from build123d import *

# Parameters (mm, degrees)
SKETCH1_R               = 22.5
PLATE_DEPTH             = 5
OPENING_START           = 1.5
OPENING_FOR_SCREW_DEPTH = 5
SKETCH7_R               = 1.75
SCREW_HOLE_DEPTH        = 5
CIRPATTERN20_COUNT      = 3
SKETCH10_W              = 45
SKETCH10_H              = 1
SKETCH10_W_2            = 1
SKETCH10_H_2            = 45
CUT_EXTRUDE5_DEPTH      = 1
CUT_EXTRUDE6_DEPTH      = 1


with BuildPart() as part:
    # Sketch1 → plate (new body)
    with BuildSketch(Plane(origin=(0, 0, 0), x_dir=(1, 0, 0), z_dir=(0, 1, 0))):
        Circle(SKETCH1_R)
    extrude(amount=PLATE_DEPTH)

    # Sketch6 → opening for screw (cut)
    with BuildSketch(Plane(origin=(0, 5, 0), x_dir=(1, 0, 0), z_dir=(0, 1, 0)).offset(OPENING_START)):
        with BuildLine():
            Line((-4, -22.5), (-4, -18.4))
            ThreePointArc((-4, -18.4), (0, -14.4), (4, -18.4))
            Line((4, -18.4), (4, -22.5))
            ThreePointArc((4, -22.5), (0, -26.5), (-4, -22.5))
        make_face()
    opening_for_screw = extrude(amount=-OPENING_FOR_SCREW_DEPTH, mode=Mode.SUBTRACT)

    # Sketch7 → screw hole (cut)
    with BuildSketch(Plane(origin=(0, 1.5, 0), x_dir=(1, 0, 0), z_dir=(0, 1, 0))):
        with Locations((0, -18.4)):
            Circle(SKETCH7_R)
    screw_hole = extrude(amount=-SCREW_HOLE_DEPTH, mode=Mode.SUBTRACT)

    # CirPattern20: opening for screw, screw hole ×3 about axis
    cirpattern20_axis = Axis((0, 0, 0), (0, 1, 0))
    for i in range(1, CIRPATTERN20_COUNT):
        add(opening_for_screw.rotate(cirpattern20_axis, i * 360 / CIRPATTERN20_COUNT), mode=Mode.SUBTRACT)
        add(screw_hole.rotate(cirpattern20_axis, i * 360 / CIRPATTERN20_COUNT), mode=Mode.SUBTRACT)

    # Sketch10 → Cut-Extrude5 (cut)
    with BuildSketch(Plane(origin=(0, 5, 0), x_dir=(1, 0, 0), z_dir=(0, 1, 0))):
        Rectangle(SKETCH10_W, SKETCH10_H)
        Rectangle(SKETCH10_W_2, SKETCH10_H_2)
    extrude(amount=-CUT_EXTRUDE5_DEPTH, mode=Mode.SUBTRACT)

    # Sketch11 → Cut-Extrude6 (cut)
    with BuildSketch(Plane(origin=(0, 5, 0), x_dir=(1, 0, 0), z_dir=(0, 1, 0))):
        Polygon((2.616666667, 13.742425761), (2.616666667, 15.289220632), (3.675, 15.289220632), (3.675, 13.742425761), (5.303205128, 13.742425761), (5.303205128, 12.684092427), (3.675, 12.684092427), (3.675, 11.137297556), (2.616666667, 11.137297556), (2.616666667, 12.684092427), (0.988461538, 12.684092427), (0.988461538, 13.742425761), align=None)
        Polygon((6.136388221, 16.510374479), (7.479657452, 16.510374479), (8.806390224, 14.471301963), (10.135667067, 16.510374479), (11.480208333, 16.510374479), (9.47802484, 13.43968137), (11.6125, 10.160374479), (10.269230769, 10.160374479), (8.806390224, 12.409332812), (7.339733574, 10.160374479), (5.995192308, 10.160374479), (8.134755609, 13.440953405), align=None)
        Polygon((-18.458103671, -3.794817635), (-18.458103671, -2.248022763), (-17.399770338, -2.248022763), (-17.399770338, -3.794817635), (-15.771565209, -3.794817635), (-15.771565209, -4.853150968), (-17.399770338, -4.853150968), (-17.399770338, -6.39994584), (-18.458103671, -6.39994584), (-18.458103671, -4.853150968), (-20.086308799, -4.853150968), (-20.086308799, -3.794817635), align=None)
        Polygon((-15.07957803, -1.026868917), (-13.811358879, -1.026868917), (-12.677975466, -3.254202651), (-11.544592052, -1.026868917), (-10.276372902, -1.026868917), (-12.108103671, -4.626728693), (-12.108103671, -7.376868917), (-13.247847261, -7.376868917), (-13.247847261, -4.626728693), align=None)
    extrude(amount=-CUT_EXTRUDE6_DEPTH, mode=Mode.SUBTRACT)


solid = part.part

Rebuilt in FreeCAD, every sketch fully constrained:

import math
import FreeCAD as App
import Part
import Sketcher
Q = App.Units.Quantity

doc = App.newDocument("Part")
body = doc.addObject("PartDesign::Body", "Body")

sketch1 = body.newObject("Sketcher::SketchObject", "Sketch")
sketch1.AttachmentSupport = (doc.getObject("XZ_Plane"), [""])
sketch1.MapMode = "FlatFace"
sketch1.addGeometry(Part.Circle(App.Vector(0, 0, 0), App.Vector(0, 0, 1), 22), False)
sketch1.addConstraint(Sketcher.Constraint("Coincident", 0, 3, -1, 1))
sketch1.addConstraint(Sketcher.Constraint("Diameter", 0, Q("45 mm")))
pad1 = body.newObject("PartDesign::Pad", "Pad")
pad1.Profile = sketch1
pad1.Length = 5
pad1.Reversed = True

sketch2 = body.newObject("Sketcher::SketchObject", "Sketch001")
sketch2.AttachmentSupport = (doc.getObject("XZ_Plane"), [""])
sketch2.MapMode = "FlatFace"
sketch2.AttachmentOffset = App.Placement(App.Vector(0, 0, -6.5), App.Rotation())
sketch2.addGeometry(Part.LineSegment(App.Vector(-4, 18.4, 0), App.Vector(-4, 22.5, 0)), False)
sketch2.addGeometry(Part.ArcOfCircle(Part.Circle(App.Vector(0, 22.5, 0), App.Vector(0, 0, 1), 4), math.radians(0), math.radians(180)), False)
sketch2.addGeometry(Part.LineSegment(App.Vector(4, 22.5, 0), App.Vector(4, 18.4, 0)), False)
sketch2.addGeometry(Part.ArcOfCircle(Part.Circle(App.Vector(0, 18.4, 0), App.Vector(0, 0, 1), 4), math.radians(180), math.radians(360)), False)
sketch2.addConstraint(Sketcher.Constraint("Tangent", 0, 2, 1, 2))
sketch2.addConstraint(Sketcher.Constraint("Tangent", 1, 1, 2, 1))
sketch2.addConstraint(Sketcher.Constraint("Tangent", 2, 2, 3, 2))
sketch2.addConstraint(Sketcher.Constraint("Tangent", 3, 1, 0, 1))
sketch2.addConstraint(Sketcher.Constraint("Vertical", 0))
sketch2.addConstraint(Sketcher.Constraint("Vertical", 2))
sketch2.addConstraint(Sketcher.Constraint("PointOnObject", 1, 3, -2))
sketch2.addConstraint(Sketcher.Constraint("Radius", 1, Q("4 mm")))
sketch2.addConstraint(Sketcher.Constraint("DistanceY", 0, 1, 0, 2, Q("4.1 mm")))
sketch2.addConstraint(Sketcher.Constraint("DistanceY", -1, 1, 1, 3, Q("22.5 mm")))
pocket1 = body.newObject("PartDesign::Pocket", "Pocket")
pocket1.Profile = sketch2
pocket1.Length = 5
pocket1.Reversed = True

sketch3 = body.newObject("Sketcher::SketchObject", "Sketch002")
sketch3.AttachmentSupport = (doc.getObject("XZ_Plane"), [""])
sketch3.MapMode = "FlatFace"
sketch3.AttachmentOffset = App.Placement(App.Vector(0, 0, -1.5), App.Rotation())
sketch3.addGeometry(Part.Circle(App.Vector(0, 18.4, 0), App.Vector(0, 0, 1), 1.8), False)
sketch3.addConstraint(Sketcher.Constraint("PointOnObject", 0, 3, -2))
sketch3.addConstraint(Sketcher.Constraint("Diameter", 0, Q("3.5 mm")))
sketch3.addConstraint(Sketcher.Constraint("DistanceY", -1, 1, 0, 3, Q("18.4 mm")))
pocket2 = body.newObject("PartDesign::Pocket", "Pocket001")
pocket2.Profile = sketch3
pocket2.Length = 5
pocket2.Reversed = True
doc.recompute()

polarpattern = body.newObject("PartDesign::PolarPattern", "PolarPattern")
polarpattern.Originals = [pocket1, pocket2]
polarpattern.Axis = (doc.getObject("Y_Axis"), [""])
polarpattern.Angle = 360
polarpattern.Occurrences = 3
body.Tip = polarpattern

sketch4 = body.newObject("Sketcher::SketchObject", "Sketch003")
sketch4.AttachmentSupport = (doc.getObject("XZ_Plane"), [""])
sketch4.MapMode = "FlatFace"
sketch4.AttachmentOffset = App.Placement(App.Vector(0, 0, -5), App.Rotation())
sketch4.addGeometry(Part.LineSegment(App.Vector(-22.5, -0.5, 0), App.Vector(-22.5, 0.5, 0)), False)
sketch4.addGeometry(Part.LineSegment(App.Vector(-22.5, 0.5, 0), App.Vector(-0.5, 0.5, 0)), False)
sketch4.addGeometry(Part.LineSegment(App.Vector(-0.5, 0.5, 0), App.Vector(-0.5, 22.5, 0)), False)
sketch4.addGeometry(Part.LineSegment(App.Vector(-0.5, 22.5, 0), App.Vector(0.5, 22.5, 0)), False)
sketch4.addGeometry(Part.LineSegment(App.Vector(0.5, 22.5, 0), App.Vector(0.5, 0.5, 0)), False)
sketch4.addGeometry(Part.LineSegment(App.Vector(0.5, 0.5, 0), App.Vector(22.5, 0.5, 0)), False)
sketch4.addGeometry(Part.LineSegment(App.Vector(22.5, 0.5, 0), App.Vector(22.5, -0.5, 0)), False)
sketch4.addGeometry(Part.LineSegment(App.Vector(22.5, -0.5, 0), App.Vector(0.5, -0.5, 0)), False)
sketch4.addGeometry(Part.LineSegment(App.Vector(0.5, -0.5, 0), App.Vector(0.5, -22.5, 0)), False)
sketch4.addGeometry(Part.LineSegment(App.Vector(0.5, -22.5, 0), App.Vector(-0.5, -22.5, 0)), False)
sketch4.addGeometry(Part.LineSegment(App.Vector(-0.5, -22.5, 0), App.Vector(-0.5, -0.5, 0)), False)
sketch4.addGeometry(Part.LineSegment(App.Vector(-0.5, -0.5, 0), App.Vector(-22.5, -0.5, 0)), False)
sketch4.addConstraint(Sketcher.Constraint("Coincident", 0, 2, 1, 1))
sketch4.addConstraint(Sketcher.Constraint("Coincident", 1, 2, 2, 1))
sketch4.addConstraint(Sketcher.Constraint("Coincident", 2, 2, 3, 1))
sketch4.addConstraint(Sketcher.Constraint("Coincident", 3, 2, 4, 1))
sketch4.addConstraint(Sketcher.Constraint("Coincident", 4, 2, 5, 1))
sketch4.addConstraint(Sketcher.Constraint("Coincident", 5, 2, 6, 1))
sketch4.addConstraint(Sketcher.Constraint("Coincident", 6, 2, 7, 1))
sketch4.addConstraint(Sketcher.Constraint("Coincident", 7, 2, 8, 1))
sketch4.addConstraint(Sketcher.Constraint("Coincident", 8, 2, 9, 1))
sketch4.addConstraint(Sketcher.Constraint("Coincident", 9, 2, 10, 1))
sketch4.addConstraint(Sketcher.Constraint("Coincident", 10, 2, 11, 1))
sketch4.addConstraint(Sketcher.Constraint("Coincident", 11, 2, 0, 1))
sketch4.addConstraint(Sketcher.Constraint("Vertical", 0))
sketch4.addConstraint(Sketcher.Constraint("Horizontal", 1))
sketch4.addConstraint(Sketcher.Constraint("Vertical", 2))
sketch4.addConstraint(Sketcher.Constraint("Horizontal", 3))
sketch4.addConstraint(Sketcher.Constraint("Vertical", 4))
sketch4.addConstraint(Sketcher.Constraint("Horizontal", 5))
sketch4.addConstraint(Sketcher.Constraint("Vertical", 6))
sketch4.addConstraint(Sketcher.Constraint("Horizontal", 7))
sketch4.addConstraint(Sketcher.Constraint("Vertical", 8))
sketch4.addConstraint(Sketcher.Constraint("Horizontal", 9))
sketch4.addConstraint(Sketcher.Constraint("Vertical", 10))
sketch4.addConstraint(Sketcher.Constraint("Horizontal", 11))
sketch4.addConstraint(Sketcher.Constraint("Symmetric", 0, 2, 6, 2, -1, 1))
sketch4.addConstraint(Sketcher.Constraint("Symmetric", 2, 2, 8, 2, -1, 1))
sketch4.addConstraint(Sketcher.Constraint("Symmetric", 4, 2, 10, 2, -1, 1))
sketch4.addConstraint(Sketcher.Constraint("Symmetric", 1, 2, 4, 2, -2))
sketch4.addConstraint(Sketcher.Constraint("Equal", 9, 0))
sketch4.addConstraint(Sketcher.Constraint("Equal", 11, 2))
sketch4.addConstraint(Sketcher.Constraint("DistanceX", 1, 1, 1, 2, Q("22 mm")))
sketch4.addConstraint(Sketcher.Constraint("DistanceX", 3, 1, 3, 2, Q("1 mm")))
pocket3 = body.newObject("PartDesign::Pocket", "Pocket002")
pocket3.Profile = sketch4
pocket3.Length = 1
pocket3.Reversed = True

sketch5 = body.newObject("Sketcher::SketchObject", "Sketch004")
sketch5.AttachmentSupport = (doc.getObject("XZ_Plane"), [""])
sketch5.MapMode = "FlatFace"
sketch5.AttachmentOffset = App.Placement(App.Vector(0, 0, -5), App.Rotation())
sketch5.addGeometry(Part.LineSegment(App.Vector(2.6, -15.3, 0), App.Vector(2.6, -13.7, 0)), False)
sketch5.addGeometry(Part.LineSegment(App.Vector(2.6, -13.7, 0), App.Vector(1, -13.7, 0)), False)
sketch5.addGeometry(Part.LineSegment(App.Vector(1, -13.7, 0), App.Vector(1, -12.7, 0)), False)
sketch5.addGeometry(Part.LineSegment(App.Vector(1, -12.7, 0), App.Vector(2.6, -12.7, 0)), False)
sketch5.addGeometry(Part.LineSegment(App.Vector(2.6, -12.7, 0), App.Vector(2.6, -11.1, 0)), False)
sketch5.addGeometry(Part.LineSegment(App.Vector(2.6, -11.1, 0), App.Vector(3.7, -11.1, 0)), False)
sketch5.addGeometry(Part.LineSegment(App.Vector(3.7, -11.1, 0), App.Vector(3.7, -12.7, 0)), False)
sketch5.addGeometry(Part.LineSegment(App.Vector(3.7, -12.7, 0), App.Vector(5.3, -12.7, 0)), False)
sketch5.addGeometry(Part.LineSegment(App.Vector(5.3, -12.7, 0), App.Vector(5.3, -13.7, 0)), False)
sketch5.addGeometry(Part.LineSegment(App.Vector(5.3, -13.7, 0), App.Vector(3.7, -13.7, 0)), False)
sketch5.addGeometry(Part.LineSegment(App.Vector(3.7, -13.7, 0), App.Vector(3.7, -15.3, 0)), False)
sketch5.addGeometry(Part.LineSegment(App.Vector(3.7, -15.3, 0), App.Vector(2.6, -15.3, 0)), False)
sketch5.addGeometry(Part.LineSegment(App.Vector(7.5, -16.5, 0), App.Vector(6.1, -16.5, 0)), False)
sketch5.addGeometry(Part.LineSegment(App.Vector(6.1, -16.5, 0), App.Vector(8.1, -13.4, 0)), False)
sketch5.addGeometry(Part.LineSegment(App.Vector(8.1, -13.4, 0), App.Vector(6, -10.2, 0)), False)
sketch5.addGeometry(Part.LineSegment(App.Vector(6, -10.2, 0), App.Vector(7.3, -10.2, 0)), False)
sketch5.addGeometry(Part.LineSegment(App.Vector(7.3, -10.2, 0), App.Vector(8.8, -12.4, 0)), False)
sketch5.addGeometry(Part.LineSegment(App.Vector(8.8, -12.4, 0), App.Vector(10.3, -10.2, 0)), False)
sketch5.addGeometry(Part.LineSegment(App.Vector(10.3, -10.2, 0), App.Vector(11.6, -10.2, 0)), False)
sketch5.addGeometry(Part.LineSegment(App.Vector(11.6, -10.2, 0), App.Vector(9.5, -13.4, 0)), False)
sketch5.addGeometry(Part.LineSegment(App.Vector(9.5, -13.4, 0), App.Vector(11.5, -16.5, 0)), False)
sketch5.addGeometry(Part.LineSegment(App.Vector(11.5, -16.5, 0), App.Vector(10.1, -16.5, 0)), False)
sketch5.addGeometry(Part.LineSegment(App.Vector(10.1, -16.5, 0), App.Vector(8.8, -14.5, 0)), False)
sketch5.addGeometry(Part.LineSegment(App.Vector(8.8, -14.5, 0), App.Vector(7.5, -16.5, 0)), False)
sketch5.addGeometry(Part.LineSegment(App.Vector(-18.5, 2.2, 0), App.Vector(-18.5, 3.8, 0)), False)
sketch5.addGeometry(Part.LineSegment(App.Vector(-18.5, 3.8, 0), App.Vector(-20.1, 3.8, 0)), False)
sketch5.addGeometry(Part.LineSegment(App.Vector(-20.1, 3.8, 0), App.Vector(-20.1, 4.9, 0)), False)
sketch5.addGeometry(Part.LineSegment(App.Vector(-20.1, 4.9, 0), App.Vector(-18.5, 4.9, 0)), False)
sketch5.addGeometry(Part.LineSegment(App.Vector(-18.5, 4.9, 0), App.Vector(-18.5, 6.4, 0)), False)
sketch5.addGeometry(Part.LineSegment(App.Vector(-18.5, 6.4, 0), App.Vector(-17.4, 6.4, 0)), False)
sketch5.addGeometry(Part.LineSegment(App.Vector(-17.4, 6.4, 0), App.Vector(-17.4, 4.9, 0)), False)
sketch5.addGeometry(Part.LineSegment(App.Vector(-17.4, 4.9, 0), App.Vector(-15.8, 4.9, 0)), False)
sketch5.addGeometry(Part.LineSegment(App.Vector(-15.8, 4.9, 0), App.Vector(-15.8, 3.8, 0)), False)
sketch5.addGeometry(Part.LineSegment(App.Vector(-15.8, 3.8, 0), App.Vector(-17.4, 3.8, 0)), False)
sketch5.addGeometry(Part.LineSegment(App.Vector(-17.4, 3.8, 0), App.Vector(-17.4, 2.2, 0)), False)
sketch5.addGeometry(Part.LineSegment(App.Vector(-17.4, 2.2, 0), App.Vector(-18.5, 2.2, 0)), False)
sketch5.addGeometry(Part.LineSegment(App.Vector(-13.8, 1, 0), App.Vector(-15.1, 1, 0)), False)
sketch5.addGeometry(Part.LineSegment(App.Vector(-15.1, 1, 0), App.Vector(-13.2, 4.6, 0)), False)
sketch5.addGeometry(Part.LineSegment(App.Vector(-13.2, 4.6, 0), App.Vector(-13.2, 7.4, 0)), False)
sketch5.addGeometry(Part.LineSegment(App.Vector(-13.2, 7.4, 0), App.Vector(-12.1, 7.4, 0)), False)
sketch5.addGeometry(Part.LineSegment(App.Vector(-12.1, 7.4, 0), App.Vector(-12.1, 4.6, 0)), False)
sketch5.addGeometry(Part.LineSegment(App.Vector(-12.1, 4.6, 0), App.Vector(-10.3, 1, 0)), False)
sketch5.addGeometry(Part.LineSegment(App.Vector(-10.3, 1, 0), App.Vector(-11.5, 1, 0)), False)
sketch5.addGeometry(Part.LineSegment(App.Vector(-11.5, 1, 0), App.Vector(-12.7, 3.3, 0)), False)
sketch5.addGeometry(Part.LineSegment(App.Vector(-12.7, 3.3, 0), App.Vector(-13.8, 1, 0)), False)
sketch5.addConstraint(Sketcher.Constraint("Coincident", 0, 2, 1, 1))
sketch5.addConstraint(Sketcher.Constraint("Coincident", 1, 2, 2, 1))
sketch5.addConstraint(Sketcher.Constraint("Coincident", 2, 2, 3, 1))
sketch5.addConstraint(Sketcher.Constraint("Coincident", 3, 2, 4, 1))
sketch5.addConstraint(Sketcher.Constraint("Coincident", 4, 2, 5, 1))
sketch5.addConstraint(Sketcher.Constraint("Coincident", 5, 2, 6, 1))
sketch5.addConstraint(Sketcher.Constraint("Coincident", 6, 2, 7, 1))
sketch5.addConstraint(Sketcher.Constraint("Coincident", 7, 2, 8, 1))
sketch5.addConstraint(Sketcher.Constraint("Coincident", 8, 2, 9, 1))
sketch5.addConstraint(Sketcher.Constraint("Coincident", 9, 2, 10, 1))
sketch5.addConstraint(Sketcher.Constraint("Coincident", 10, 2, 11, 1))
sketch5.addConstraint(Sketcher.Constraint("Coincident", 11, 2, 0, 1))
sketch5.addConstraint(Sketcher.Constraint("Coincident", 12, 2, 13, 1))
sketch5.addConstraint(Sketcher.Constraint("Coincident", 13, 2, 14, 1))
sketch5.addConstraint(Sketcher.Constraint("Coincident", 14, 2, 15, 1))
sketch5.addConstraint(Sketcher.Constraint("Coincident", 15, 2, 16, 1))
sketch5.addConstraint(Sketcher.Constraint("Coincident", 16, 2, 17, 1))
sketch5.addConstraint(Sketcher.Constraint("Coincident", 17, 2, 18, 1))
sketch5.addConstraint(Sketcher.Constraint("Coincident", 18, 2, 19, 1))
sketch5.addConstraint(Sketcher.Constraint("Coincident", 19, 2, 20, 1))
sketch5.addConstraint(Sketcher.Constraint("Coincident", 20, 2, 21, 1))
sketch5.addConstraint(Sketcher.Constraint("Coincident", 21, 2, 22, 1))
sketch5.addConstraint(Sketcher.Constraint("Coincident", 22, 2, 23, 1))
sketch5.addConstraint(Sketcher.Constraint("Coincident", 23, 2, 12, 1))
sketch5.addConstraint(Sketcher.Constraint("Coincident", 24, 2, 25, 1))
sketch5.addConstraint(Sketcher.Constraint("Coincident", 25, 2, 26, 1))
sketch5.addConstraint(Sketcher.Constraint("Coincident", 26, 2, 27, 1))
sketch5.addConstraint(Sketcher.Constraint("Coincident", 27, 2, 28, 1))
sketch5.addConstraint(Sketcher.Constraint("Coincident", 28, 2, 29, 1))
sketch5.addConstraint(Sketcher.Constraint("Coincident", 29, 2, 30, 1))
sketch5.addConstraint(Sketcher.Constraint("Coincident", 30, 2, 31, 1))
sketch5.addConstraint(Sketcher.Constraint("Coincident", 31, 2, 32, 1))
sketch5.addConstraint(Sketcher.Constraint("Coincident", 32, 2, 33, 1))
sketch5.addConstraint(Sketcher.Constraint("Coincident", 33, 2, 34, 1))
sketch5.addConstraint(Sketcher.Constraint("Coincident", 34, 2, 35, 1))
sketch5.addConstraint(Sketcher.Constraint("Coincident", 35, 2, 24, 1))
sketch5.addConstraint(Sketcher.Constraint("Coincident", 36, 2, 37, 1))
sketch5.addConstraint(Sketcher.Constraint("Coincident", 37, 2, 38, 1))
sketch5.addConstraint(Sketcher.Constraint("Coincident", 38, 2, 39, 1))
sketch5.addConstraint(Sketcher.Constraint("Coincident", 39, 2, 40, 1))
sketch5.addConstraint(Sketcher.Constraint("Coincident", 40, 2, 41, 1))
sketch5.addConstraint(Sketcher.Constraint("Coincident", 41, 2, 42, 1))
sketch5.addConstraint(Sketcher.Constraint("Coincident", 42, 2, 43, 1))
sketch5.addConstraint(Sketcher.Constraint("Coincident", 43, 2, 44, 1))
sketch5.addConstraint(Sketcher.Constraint("Coincident", 44, 2, 36, 1))
sketch5.addConstraint(Sketcher.Constraint("Vertical", 0))
sketch5.addConstraint(Sketcher.Constraint("Horizontal", 1))
sketch5.addConstraint(Sketcher.Constraint("Vertical", 2))
sketch5.addConstraint(Sketcher.Constraint("Horizontal", 3))
sketch5.addConstraint(Sketcher.Constraint("Vertical", 4))
sketch5.addConstraint(Sketcher.Constraint("Horizontal", 5))
sketch5.addConstraint(Sketcher.Constraint("Vertical", 6))
sketch5.addConstraint(Sketcher.Constraint("Horizontal", 7))
sketch5.addConstraint(Sketcher.Constraint("Vertical", 8))
sketch5.addConstraint(Sketcher.Constraint("Horizontal", 9))
sketch5.addConstraint(Sketcher.Constraint("Vertical", 10))
sketch5.addConstraint(Sketcher.Constraint("Horizontal", 11))
sketch5.addConstraint(Sketcher.Constraint("Horizontal", 12))
sketch5.addConstraint(Sketcher.Constraint("Horizontal", 15))
sketch5.addConstraint(Sketcher.Constraint("Horizontal", 18))
sketch5.addConstraint(Sketcher.Constraint("Horizontal", 21))
sketch5.addConstraint(Sketcher.Constraint("Vertical", 24))
sketch5.addConstraint(Sketcher.Constraint("Horizontal", 25))
sketch5.addConstraint(Sketcher.Constraint("Vertical", 26))
sketch5.addConstraint(Sketcher.Constraint("Horizontal", 27))
sketch5.addConstraint(Sketcher.Constraint("Vertical", 28))
sketch5.addConstraint(Sketcher.Constraint("Horizontal", 29))
sketch5.addConstraint(Sketcher.Constraint("Vertical", 30))
sketch5.addConstraint(Sketcher.Constraint("Horizontal", 31))
sketch5.addConstraint(Sketcher.Constraint("Vertical", 32))
sketch5.addConstraint(Sketcher.Constraint("Horizontal", 33))
sketch5.addConstraint(Sketcher.Constraint("Vertical", 34))
sketch5.addConstraint(Sketcher.Constraint("Horizontal", 35))
sketch5.addConstraint(Sketcher.Constraint("Horizontal", 36))
sketch5.addConstraint(Sketcher.Constraint("Vertical", 38))
sketch5.addConstraint(Sketcher.Constraint("Horizontal", 39))
sketch5.addConstraint(Sketcher.Constraint("Vertical", 40))
sketch5.addConstraint(Sketcher.Constraint("Horizontal", 42))
sketch5.addConstraint(Sketcher.Constraint("Horizontal", 3, 2, 6, 2))
sketch5.addConstraint(Sketcher.Constraint("Horizontal", 1, 2, 8, 2))
sketch5.addConstraint(Sketcher.Constraint("Horizontal", 15, 2, 17, 2))
sketch5.addConstraint(Sketcher.Constraint("Horizontal", 12, 2, 20, 2))
sketch5.addConstraint(Sketcher.Constraint("Horizontal", 27, 2, 30, 2))
sketch5.addConstraint(Sketcher.Constraint("Horizontal", 25, 2, 32, 2))
sketch5.addConstraint(Sketcher.Constraint("Horizontal", 37, 2, 40, 2))
sketch5.addConstraint(Sketcher.Constraint("Horizontal", 36, 2, 41, 2))
sketch5.addConstraint(Sketcher.Constraint("Vertical", 0, 2, 3, 2))
sketch5.addConstraint(Sketcher.Constraint("Vertical", 6, 2, 9, 2))
sketch5.addConstraint(Sketcher.Constraint("Vertical", 16, 2, 22, 2))
sketch5.addConstraint(Sketcher.Constraint("Vertical", 24, 2, 27, 2))
sketch5.addConstraint(Sketcher.Constraint("Vertical", 30, 2, 33, 2))
sketch5.addConstraint(Sketcher.Constraint("Equal", 3, 7))
sketch5.addConstraint(Sketcher.Constraint("Equal", 12, 18))
sketch5.addConstraint(Sketcher.Constraint("Equal", 15, 21))
sketch5.addConstraint(Sketcher.Constraint("Equal", 9, 25))
sketch5.addConstraint(Sketcher.Constraint("Equal", 11, 29))
sketch5.addConstraint(Sketcher.Constraint("Equal", 27, 31))
sketch5.addConstraint(Sketcher.Constraint("Equal", 36, 42))
sketch5.addConstraint(Sketcher.Constraint("Equal", 35, 2))
sketch5.addConstraint(Sketcher.Constraint("Equal", 0, 4))
sketch5.addConstraint(Sketcher.Constraint("Equal", 10, 24))
sketch5.addConstraint(Sketcher.Constraint("Equal", 8, 26))
sketch5.addConstraint(Sketcher.Constraint("Equal", 24, 28))
sketch5.addConstraint(Sketcher.Constraint("Equal", 37, 41))
sketch5.addConstraint(Sketcher.Constraint("Equal", 43, 44))
sketch5.addConstraint(Sketcher.Constraint("DistanceY", 20, 2, 18, 2, Q("6.35 mm")))
sketch5.addConstraint(Sketcher.Constraint("DistanceY", 41, 2, 39, 2, Q("6.35 mm")))
sketch5.addConstraint(Sketcher.Constraint("DistanceX", -1, 1, 5, 2, Q("3.675 mm")))
sketch5.addConstraint(Sketcher.Constraint("Distance", 23, Q("2.432701 mm")))
sketch5.addConstraint(Sketcher.Constraint("DistanceX", 12, 2, 12, 1, Q("1.343269 mm")))
sketch5.addConstraint(Sketcher.Constraint("DistanceX", 15, 1, 15, 2, Q("1.344541 mm")))
sketch5.addConstraint(Sketcher.Constraint("DistanceX", 36, 2, 36, 1, Q("1.268219 mm")))
sketch5.addConstraint(Sketcher.Constraint("DistanceY", 38, 1, 38, 2, Q("2.75014 mm")))
sketch5.addConstraint(Sketcher.Constraint("DistanceX", -1, 1, 18, 2, Q("11.6125 mm")))
sketch5.addConstraint(Sketcher.Constraint("DistanceY", 22, 2, -1, 1, Q("14.471302 mm")))
sketch5.addConstraint(Sketcher.Constraint("DistanceX", 23, 2, 13, 2, Q("0.655098 mm")))
sketch5.addConstraint(Sketcher.Constraint("Distance", 16, Q("2.684939 mm")))
sketch5.addConstraint(Sketcher.Constraint("Distance", 19, Q("3.912779 mm")))
sketch5.addConstraint(Sketcher.Constraint("Distance", 22, Q("2.43409 mm")))
sketch5.addConstraint(Sketcher.Constraint("DistanceX", 1, 2, 1, 1, Q("1.628205 mm")))
sketch5.addConstraint(Sketcher.Constraint("DistanceX", 5, 1, 5, 2, Q("1.058333 mm")))
sketch5.addConstraint(Sketcher.Constraint("DistanceX", 39, 1, 39, 2, Q("1.139744 mm")))
sketch5.addConstraint(Sketcher.Constraint("DistanceY", 0, 1, 0, 2, Q("1.546795 mm")))
sketch5.addConstraint(Sketcher.Constraint("DistanceY", 10, 2, -1, 1, Q("15.289221 mm")))
sketch5.addConstraint(Sketcher.Constraint("DistanceX", -1, 1, 12, 2, Q("6.136388 mm")))
sketch5.addConstraint(Sketcher.Constraint("DistanceX", -1, 1, 16, 2, Q("8.80639 mm")))
sketch5.addConstraint(Sketcher.Constraint("DistanceY", 19, 2, -1, 1, Q("13.439681 mm")))
sketch5.addConstraint(Sketcher.Constraint("DistanceX", 25, 2, -1, 1, Q("20.086309 mm")))
sketch5.addConstraint(Sketcher.Constraint("DistanceY", -1, 1, 26, 2, Q("4.853151 mm")))
sketch5.addConstraint(Sketcher.Constraint("DistanceX", 36, 2, -1, 1, Q("15.079578 mm")))
sketch5.addConstraint(Sketcher.Constraint("DistanceY", -1, 1, 36, 2, Q("1.026869 mm")))
sketch5.addConstraint(Sketcher.Constraint("DistanceY", 13, 2, 7, 2, Q("0.756861 mm")))
sketch5.addConstraint(Sketcher.Constraint("DistanceX", 7, 2, 15, 2, Q("2.036528 mm")))
sketch5.addConstraint(Sketcher.Constraint("DistanceX", 36, 2, 37, 2, Q("1.831731 mm")))
sketch5.addConstraint(Sketcher.Constraint("Distance", 43, Q("2.499115 mm")))
pocket4 = body.newObject("PartDesign::Pocket", "Pocket003")
pocket4.Profile = sketch5
pocket4.Length = 1
pocket4.Reversed = True

doc.recompute()
